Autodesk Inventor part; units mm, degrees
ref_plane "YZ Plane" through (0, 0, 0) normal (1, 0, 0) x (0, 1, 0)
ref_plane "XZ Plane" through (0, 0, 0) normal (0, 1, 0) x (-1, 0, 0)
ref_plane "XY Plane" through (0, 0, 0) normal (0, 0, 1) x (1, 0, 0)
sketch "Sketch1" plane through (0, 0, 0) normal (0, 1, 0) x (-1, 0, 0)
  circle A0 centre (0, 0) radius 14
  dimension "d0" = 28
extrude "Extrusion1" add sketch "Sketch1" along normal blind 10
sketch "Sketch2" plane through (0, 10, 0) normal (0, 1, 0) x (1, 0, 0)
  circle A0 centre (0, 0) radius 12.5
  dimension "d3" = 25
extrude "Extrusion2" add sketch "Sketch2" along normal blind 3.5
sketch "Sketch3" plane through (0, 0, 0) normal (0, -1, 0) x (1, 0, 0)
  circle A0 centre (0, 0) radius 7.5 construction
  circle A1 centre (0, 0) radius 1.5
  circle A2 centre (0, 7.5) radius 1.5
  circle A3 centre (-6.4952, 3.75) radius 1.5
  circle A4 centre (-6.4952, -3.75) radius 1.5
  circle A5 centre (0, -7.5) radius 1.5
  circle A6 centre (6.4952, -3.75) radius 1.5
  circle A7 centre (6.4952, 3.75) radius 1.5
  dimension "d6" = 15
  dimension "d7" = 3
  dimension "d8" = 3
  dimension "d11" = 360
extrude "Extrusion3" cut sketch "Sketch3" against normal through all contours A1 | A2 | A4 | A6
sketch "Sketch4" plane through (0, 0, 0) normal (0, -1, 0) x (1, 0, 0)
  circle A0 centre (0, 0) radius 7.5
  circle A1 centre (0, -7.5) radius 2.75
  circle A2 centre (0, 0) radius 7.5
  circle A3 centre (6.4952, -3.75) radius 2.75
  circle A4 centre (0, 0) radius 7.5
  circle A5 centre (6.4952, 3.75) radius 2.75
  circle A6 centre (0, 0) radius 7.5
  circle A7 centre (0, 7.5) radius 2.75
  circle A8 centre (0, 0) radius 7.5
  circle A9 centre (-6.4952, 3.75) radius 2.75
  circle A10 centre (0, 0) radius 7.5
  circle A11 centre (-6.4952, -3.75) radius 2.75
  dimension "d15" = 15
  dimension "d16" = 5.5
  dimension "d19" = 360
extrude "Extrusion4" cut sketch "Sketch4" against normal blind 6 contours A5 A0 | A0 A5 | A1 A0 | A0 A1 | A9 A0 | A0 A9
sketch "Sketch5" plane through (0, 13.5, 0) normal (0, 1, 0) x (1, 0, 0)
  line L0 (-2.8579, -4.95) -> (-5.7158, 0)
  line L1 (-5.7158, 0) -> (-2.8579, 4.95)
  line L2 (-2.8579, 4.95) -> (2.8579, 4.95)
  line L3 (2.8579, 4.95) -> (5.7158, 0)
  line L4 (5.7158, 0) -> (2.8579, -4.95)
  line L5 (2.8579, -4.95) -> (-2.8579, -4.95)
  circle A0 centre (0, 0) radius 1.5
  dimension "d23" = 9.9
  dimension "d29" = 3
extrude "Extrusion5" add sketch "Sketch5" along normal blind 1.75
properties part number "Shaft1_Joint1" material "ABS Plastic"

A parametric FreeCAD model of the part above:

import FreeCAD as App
import Part
import Sketcher
Q = App.Units.Quantity

doc = App.newDocument("Part")
body = doc.addObject("PartDesign::Body", "Body")

sketch1 = body.newObject("Sketcher::SketchObject", "Sketch")
sketch1.AttachmentSupport = (doc.getObject("XZ_Plane"), [""])
sketch1.MapMode = "FlatFace"
sketch1.addGeometry(Part.Circle(App.Vector(0, 0, 0), App.Vector(0, 0, 1), 14), False)
sketch1.addConstraint([
    Sketcher.Constraint("Coincident", 0, 3, -1, 1),
    Sketcher.Constraint("Diameter", 0, Q("28 mm")),
])
pad1 = body.newObject("PartDesign::Pad", "Pad")
pad1.Profile = sketch1
pad1.Length = 10
pad1.Reversed = True

sketch2 = body.newObject("Sketcher::SketchObject", "Sketch001")
sketch2.AttachmentSupport = (doc.getObject("XZ_Plane"), [""])
sketch2.MapMode = "FlatFace"
sketch2.AttachmentOffset = App.Placement(App.Vector(0, 0, -10), App.Rotation())
sketch2.addGeometry(Part.Circle(App.Vector(0, 0, 0), App.Vector(0, 0, 1), 12), False)
sketch2.addConstraint([
    Sketcher.Constraint("Coincident", 0, 3, -1, 1),
    Sketcher.Constraint("Diameter", 0, Q("25 mm")),
])
pad2 = body.newObject("PartDesign::Pad", "Pad001")
pad2.Profile = sketch2
pad2.Length = 3.5
pad2.Reversed = True

sketch3 = body.newObject("Sketcher::SketchObject", "Sketch002")
sketch3.AttachmentSupport = (doc.getObject("XZ_Plane"), [""])
sketch3.MapMode = "FlatFace"
sketch3.addGeometry([
    Part.Circle(App.Vector(0, 0, 0), App.Vector(0, 0, 1), 1.5),
    Part.Circle(App.Vector(0, 7.5, 0), App.Vector(0, 0, 1), 1.5),
    Part.Circle(App.Vector(-6.5, -3.8, 0), App.Vector(0, 0, 1), 1.5),
    Part.Circle(App.Vector(6.5, -3.8, 0), App.Vector(0, 0, 1), 1.5),
], False)
sketch3.addConstraint([
    Sketcher.Constraint("Coincident", 0, 3, -1, 1),
    Sketcher.Constraint("Equal", 0, 1),
    Sketcher.Constraint("Equal", 1, 2),
    Sketcher.Constraint("Equal", 2, 3),
    Sketcher.Constraint("Symmetric", 2, 3, 3, 3, -2),
    Sketcher.Constraint("PointOnObject", 1, 3, -2),
    Sketcher.Constraint("Diameter", 0, Q("3 mm")),
    Sketcher.Constraint("DistanceY", -1, 1, 1, 3, Q("7.5 mm")),
    Sketcher.Constraint("DistanceY", 2, 3, -1, 1, Q("3.75 mm")),
    Sketcher.Constraint("DistanceX", 2, 3, -1, 1, Q("6.4952 mm")),
])
pocket1 = body.newObject("PartDesign::Pocket", "Pocket")
pocket1.Profile = sketch3
pocket1.Type = "ThroughAll"

sketch4 = body.newObject("Sketcher::SketchObject", "Sketch003")
sketch4.AttachmentSupport = (doc.getObject("XZ_Plane"), [""])
sketch4.MapMode = "FlatFace"
sketch4.addGeometry([
    Part.Circle(App.Vector(6.5, 3.8, 0), App.Vector(0, 0, 1), 2.8),
    Part.Circle(App.Vector(0, -7.5, 0), App.Vector(0, 0, 1), 2.8),
    Part.Circle(App.Vector(-6.5, 3.8, 0), App.Vector(0, 0, 1), 2.8),
], False)
sketch4.addConstraint([
    Sketcher.Constraint("Equal", 0, 1),
    Sketcher.Constraint("Equal", 1, 2),
    Sketcher.Constraint("Symmetric", 0, 3, 2, 3, -2),
    Sketcher.Constraint("PointOnObject", 1, 3, -2),
    Sketcher.Constraint("Diameter", 0, Q("5.5 mm")),
    Sketcher.Constraint("DistanceY", 1, 3, -1, 1, Q("7.5 mm")),
    Sketcher.Constraint("DistanceY", -1, 1, 0, 3, Q("3.75 mm")),
    Sketcher.Constraint("DistanceX", -1, 1, 0, 3, Q("6.4952 mm")),
])
pocket2 = body.newObject("PartDesign::Pocket", "Pocket001")
pocket2.Profile = sketch4
pocket2.Length = 6

sketch5 = body.newObject("Sketcher::SketchObject", "Sketch004")
sketch5.AttachmentSupport = (doc.getObject("XZ_Plane"), [""])
sketch5.MapMode = "FlatFace"
sketch5.AttachmentOffset = App.Placement(App.Vector(0, 0, -13.5), App.Rotation())
sketch5.addGeometry([
    Part.LineSegment(App.Vector(-5.7, 0, 0), App.Vector(-2.9, 5, 0)),
    Part.LineSegment(App.Vector(-2.9, 5, 0), App.Vector(2.9, 5, 0)),
    Part.LineSegment(App.Vector(2.9, 5, 0), App.Vector(5.7, 0, 0)),
    Part.LineSegment(App.Vector(5.7, 0, 0), App.Vector(2.9, -5, 0)),
    Part.LineSegment(App.Vector(2.9, -5, 0), App.Vector(-2.9, -5, 0)),
    Part.LineSegment(App.Vector(-2.9, -5, 0), App.Vector(-5.7, 0, 0)),
    Part.Circle(App.Vector(0, 0, 0), App.Vector(0, 0, 1), 1.5),
], False)
sketch5.addConstraint([
    Sketcher.Constraint("Coincident", 0, 2, 1, 1),
    Sketcher.Constraint("Coincident", 1, 2, 2, 1),
    Sketcher.Constraint("Coincident", 2, 2, 3, 1),
    Sketcher.Constraint("Coincident", 3, 2, 4, 1),
    Sketcher.Constraint("Coincident", 4, 2, 5, 1),
    Sketcher.Constraint("Coincident", 5, 2, 0, 1),
    Sketcher.Constraint("Horizontal", 1),
    Sketcher.Constraint("Horizontal", 4),
    Sketcher.Constraint("Coincident", 6, 3, -1, 1),
    Sketcher.Constraint("Symmetric", 0, 2, 3, 2, -1, 1),
    Sketcher.Constraint("Symmetric", 2, 2, 5, 2, -1, 1),
    Sketcher.Constraint("PointOnObject", 2, 2, -1),
    Sketcher.Constraint("Parallel", 2, 5),
    Sketcher.Constraint("Vertical", 1, 2, 3, 2),
    Sketcher.Constraint("Diameter", 6, Q("3 mm")),
    Sketcher.Constraint("DistanceY", 3, 2, 1, 2, Q("9.9 mm")),
    Sketcher.Constraint("Angle", 0, Q("59.9999 deg")),
    Sketcher.Constraint("DistanceX", 1, 1, 1, 2, Q("5.7158 mm")),
])
pad3 = body.newObject("PartDesign::Pad", "Pad002")
pad3.Profile = sketch5
pad3.Length = 1.75
pad3.Reversed = True

doc.recompute()
